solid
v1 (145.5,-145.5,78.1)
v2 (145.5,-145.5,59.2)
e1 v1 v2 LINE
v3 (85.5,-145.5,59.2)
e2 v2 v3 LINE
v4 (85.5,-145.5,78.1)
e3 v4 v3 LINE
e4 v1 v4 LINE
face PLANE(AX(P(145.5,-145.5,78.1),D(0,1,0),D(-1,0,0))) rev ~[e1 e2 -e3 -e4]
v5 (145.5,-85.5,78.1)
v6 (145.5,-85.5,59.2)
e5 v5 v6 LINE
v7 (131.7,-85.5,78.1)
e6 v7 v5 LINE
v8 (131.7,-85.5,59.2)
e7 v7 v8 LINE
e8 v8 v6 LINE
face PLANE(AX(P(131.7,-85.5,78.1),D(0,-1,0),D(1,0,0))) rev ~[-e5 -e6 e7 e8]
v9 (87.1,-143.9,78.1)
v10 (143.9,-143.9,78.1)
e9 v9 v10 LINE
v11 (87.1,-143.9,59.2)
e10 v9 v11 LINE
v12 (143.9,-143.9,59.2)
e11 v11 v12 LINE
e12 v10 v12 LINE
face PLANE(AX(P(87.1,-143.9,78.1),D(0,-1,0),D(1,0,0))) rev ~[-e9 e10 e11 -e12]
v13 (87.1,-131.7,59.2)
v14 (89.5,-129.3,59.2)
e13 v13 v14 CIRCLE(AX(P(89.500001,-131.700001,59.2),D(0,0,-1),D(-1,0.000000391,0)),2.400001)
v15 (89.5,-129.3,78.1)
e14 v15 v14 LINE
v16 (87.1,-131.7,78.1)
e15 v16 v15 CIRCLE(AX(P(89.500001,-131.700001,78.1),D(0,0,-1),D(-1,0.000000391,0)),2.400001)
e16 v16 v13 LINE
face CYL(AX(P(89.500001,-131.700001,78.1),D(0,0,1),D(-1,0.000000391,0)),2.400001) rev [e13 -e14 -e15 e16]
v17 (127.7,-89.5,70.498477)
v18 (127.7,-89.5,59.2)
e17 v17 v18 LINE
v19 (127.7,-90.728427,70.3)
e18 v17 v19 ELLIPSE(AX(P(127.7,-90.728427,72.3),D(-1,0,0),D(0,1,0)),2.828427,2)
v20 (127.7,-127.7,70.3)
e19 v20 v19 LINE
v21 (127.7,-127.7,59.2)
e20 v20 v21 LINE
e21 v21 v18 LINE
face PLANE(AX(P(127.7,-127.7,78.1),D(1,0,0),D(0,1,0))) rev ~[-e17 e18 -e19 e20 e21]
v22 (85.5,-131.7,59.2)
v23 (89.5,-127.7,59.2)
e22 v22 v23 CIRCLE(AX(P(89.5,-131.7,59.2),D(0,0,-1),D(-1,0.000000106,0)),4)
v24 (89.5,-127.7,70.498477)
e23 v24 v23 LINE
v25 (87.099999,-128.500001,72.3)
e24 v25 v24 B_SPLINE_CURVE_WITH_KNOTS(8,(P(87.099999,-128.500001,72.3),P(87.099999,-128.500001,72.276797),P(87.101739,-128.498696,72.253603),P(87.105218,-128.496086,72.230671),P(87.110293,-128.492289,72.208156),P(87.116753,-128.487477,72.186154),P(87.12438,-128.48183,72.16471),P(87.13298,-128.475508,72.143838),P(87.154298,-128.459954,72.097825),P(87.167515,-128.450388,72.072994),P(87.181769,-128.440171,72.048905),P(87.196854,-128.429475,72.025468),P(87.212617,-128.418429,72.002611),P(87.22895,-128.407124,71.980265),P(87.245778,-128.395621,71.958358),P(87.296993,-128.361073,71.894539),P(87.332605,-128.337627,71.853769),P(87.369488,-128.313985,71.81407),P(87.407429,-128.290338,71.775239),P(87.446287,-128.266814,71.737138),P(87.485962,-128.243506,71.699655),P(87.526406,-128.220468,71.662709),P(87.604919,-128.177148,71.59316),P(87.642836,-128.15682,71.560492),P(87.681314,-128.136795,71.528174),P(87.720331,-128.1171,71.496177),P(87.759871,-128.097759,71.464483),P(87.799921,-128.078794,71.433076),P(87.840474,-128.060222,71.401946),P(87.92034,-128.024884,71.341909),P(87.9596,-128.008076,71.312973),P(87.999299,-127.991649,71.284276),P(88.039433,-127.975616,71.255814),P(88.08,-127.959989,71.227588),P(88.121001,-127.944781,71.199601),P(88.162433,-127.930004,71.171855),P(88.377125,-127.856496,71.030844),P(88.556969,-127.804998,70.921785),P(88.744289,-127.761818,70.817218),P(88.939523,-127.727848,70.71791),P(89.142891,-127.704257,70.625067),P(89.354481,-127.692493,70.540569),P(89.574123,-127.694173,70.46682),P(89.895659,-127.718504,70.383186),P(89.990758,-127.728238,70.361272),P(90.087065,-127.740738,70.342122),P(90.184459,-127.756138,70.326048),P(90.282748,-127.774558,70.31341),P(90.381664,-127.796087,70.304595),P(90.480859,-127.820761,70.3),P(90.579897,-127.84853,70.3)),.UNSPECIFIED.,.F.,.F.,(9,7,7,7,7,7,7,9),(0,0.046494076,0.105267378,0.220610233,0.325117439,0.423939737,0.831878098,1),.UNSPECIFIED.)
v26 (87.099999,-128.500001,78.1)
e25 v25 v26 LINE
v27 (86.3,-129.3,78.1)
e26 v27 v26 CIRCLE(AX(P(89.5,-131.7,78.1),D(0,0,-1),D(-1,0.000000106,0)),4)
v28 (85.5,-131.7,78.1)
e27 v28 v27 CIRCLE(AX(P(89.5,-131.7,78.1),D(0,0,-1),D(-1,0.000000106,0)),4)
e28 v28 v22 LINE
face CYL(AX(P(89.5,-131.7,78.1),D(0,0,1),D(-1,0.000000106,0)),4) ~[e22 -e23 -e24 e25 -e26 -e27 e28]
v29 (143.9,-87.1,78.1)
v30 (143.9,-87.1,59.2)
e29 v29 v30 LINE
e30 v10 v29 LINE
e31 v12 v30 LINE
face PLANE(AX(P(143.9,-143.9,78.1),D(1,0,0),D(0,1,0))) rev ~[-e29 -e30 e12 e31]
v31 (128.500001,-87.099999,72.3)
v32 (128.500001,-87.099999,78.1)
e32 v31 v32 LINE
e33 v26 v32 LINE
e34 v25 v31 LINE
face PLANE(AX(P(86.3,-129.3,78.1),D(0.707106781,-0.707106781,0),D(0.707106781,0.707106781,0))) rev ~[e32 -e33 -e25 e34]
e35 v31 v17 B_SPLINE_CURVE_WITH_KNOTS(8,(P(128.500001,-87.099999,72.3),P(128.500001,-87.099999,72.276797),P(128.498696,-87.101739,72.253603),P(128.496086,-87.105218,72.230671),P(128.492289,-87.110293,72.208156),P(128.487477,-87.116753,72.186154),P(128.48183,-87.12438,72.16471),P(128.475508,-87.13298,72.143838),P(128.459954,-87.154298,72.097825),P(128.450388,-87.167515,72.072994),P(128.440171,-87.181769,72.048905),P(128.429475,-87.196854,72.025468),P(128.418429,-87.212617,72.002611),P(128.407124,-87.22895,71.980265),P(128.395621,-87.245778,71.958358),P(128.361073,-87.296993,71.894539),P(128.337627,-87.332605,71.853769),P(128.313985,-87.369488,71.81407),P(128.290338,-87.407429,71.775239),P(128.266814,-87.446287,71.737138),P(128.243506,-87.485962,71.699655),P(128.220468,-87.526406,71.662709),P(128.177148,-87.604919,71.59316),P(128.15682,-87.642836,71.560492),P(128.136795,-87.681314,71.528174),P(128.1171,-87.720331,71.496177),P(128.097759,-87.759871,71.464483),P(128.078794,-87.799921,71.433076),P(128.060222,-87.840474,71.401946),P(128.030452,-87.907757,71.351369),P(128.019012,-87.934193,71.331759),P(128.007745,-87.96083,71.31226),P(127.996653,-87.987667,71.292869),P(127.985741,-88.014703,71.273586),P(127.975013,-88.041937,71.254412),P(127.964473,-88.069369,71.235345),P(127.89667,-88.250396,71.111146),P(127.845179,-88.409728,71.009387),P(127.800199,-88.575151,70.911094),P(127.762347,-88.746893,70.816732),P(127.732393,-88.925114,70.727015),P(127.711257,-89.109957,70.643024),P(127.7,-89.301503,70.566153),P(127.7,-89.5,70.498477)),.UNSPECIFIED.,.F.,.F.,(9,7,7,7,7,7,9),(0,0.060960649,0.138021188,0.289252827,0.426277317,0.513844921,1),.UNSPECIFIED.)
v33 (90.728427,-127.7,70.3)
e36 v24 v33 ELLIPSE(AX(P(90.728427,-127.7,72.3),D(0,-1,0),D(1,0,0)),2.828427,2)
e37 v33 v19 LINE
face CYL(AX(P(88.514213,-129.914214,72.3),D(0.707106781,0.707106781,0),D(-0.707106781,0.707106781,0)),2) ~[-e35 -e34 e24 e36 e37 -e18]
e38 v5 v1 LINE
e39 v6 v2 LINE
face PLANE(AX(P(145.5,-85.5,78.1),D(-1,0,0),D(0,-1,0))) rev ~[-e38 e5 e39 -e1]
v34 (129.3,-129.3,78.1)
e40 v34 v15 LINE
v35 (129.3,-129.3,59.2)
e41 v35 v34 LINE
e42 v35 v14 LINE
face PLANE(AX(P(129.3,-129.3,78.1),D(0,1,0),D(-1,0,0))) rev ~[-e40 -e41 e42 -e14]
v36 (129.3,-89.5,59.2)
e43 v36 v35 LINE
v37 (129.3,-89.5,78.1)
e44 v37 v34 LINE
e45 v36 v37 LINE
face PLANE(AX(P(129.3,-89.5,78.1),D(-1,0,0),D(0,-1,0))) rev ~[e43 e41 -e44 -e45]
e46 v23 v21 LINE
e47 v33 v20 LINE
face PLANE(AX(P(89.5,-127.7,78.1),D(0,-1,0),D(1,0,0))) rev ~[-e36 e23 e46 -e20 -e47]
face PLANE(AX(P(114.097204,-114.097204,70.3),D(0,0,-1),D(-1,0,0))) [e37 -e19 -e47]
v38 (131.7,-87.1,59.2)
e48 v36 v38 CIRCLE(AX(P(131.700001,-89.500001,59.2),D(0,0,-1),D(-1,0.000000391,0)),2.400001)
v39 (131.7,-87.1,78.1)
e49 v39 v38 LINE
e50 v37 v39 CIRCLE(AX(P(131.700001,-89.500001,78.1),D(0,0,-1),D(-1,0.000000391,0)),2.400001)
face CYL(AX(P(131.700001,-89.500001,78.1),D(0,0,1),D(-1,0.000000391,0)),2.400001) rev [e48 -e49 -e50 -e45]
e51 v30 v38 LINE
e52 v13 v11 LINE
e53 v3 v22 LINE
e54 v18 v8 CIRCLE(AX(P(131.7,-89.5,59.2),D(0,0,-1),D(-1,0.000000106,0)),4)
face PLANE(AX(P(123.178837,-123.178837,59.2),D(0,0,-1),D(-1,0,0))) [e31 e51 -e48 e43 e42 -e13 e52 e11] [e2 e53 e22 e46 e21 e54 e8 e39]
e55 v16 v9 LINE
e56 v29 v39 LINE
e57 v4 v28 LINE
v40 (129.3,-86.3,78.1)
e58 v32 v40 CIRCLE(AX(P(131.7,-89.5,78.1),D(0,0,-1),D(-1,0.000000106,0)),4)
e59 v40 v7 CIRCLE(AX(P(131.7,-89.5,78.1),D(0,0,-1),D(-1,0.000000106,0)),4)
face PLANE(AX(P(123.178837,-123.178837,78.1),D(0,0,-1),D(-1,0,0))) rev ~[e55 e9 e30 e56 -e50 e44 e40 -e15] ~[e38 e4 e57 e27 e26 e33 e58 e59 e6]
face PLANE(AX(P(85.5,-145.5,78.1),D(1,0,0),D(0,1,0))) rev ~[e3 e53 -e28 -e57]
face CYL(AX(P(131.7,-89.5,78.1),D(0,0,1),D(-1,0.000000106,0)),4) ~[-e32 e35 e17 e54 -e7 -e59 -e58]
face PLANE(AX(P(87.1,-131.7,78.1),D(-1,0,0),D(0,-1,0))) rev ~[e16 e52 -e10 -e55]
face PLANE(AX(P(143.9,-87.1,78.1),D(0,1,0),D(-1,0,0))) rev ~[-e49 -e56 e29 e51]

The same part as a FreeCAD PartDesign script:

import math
import FreeCAD as App
import Part
import Sketcher

V = App.Vector


def edges_at(feature, points):
    """Names of the edges that pass closest to the given points."""
    edges = feature.Shape.Edges
    near = lambda p: min(range(len(edges)), key=lambda i: edges[i].distToShape(Part.Vertex(*p))[0])
    return sorted({f"Edge{near(p) + 1}" for p in points})


def add_polygon(sketch, points):
    """Adds a closed chain of lines whose ends are joined by coincident constraints."""
    first, n = sketch.GeometryCount, len(points)
    for a, b in zip(points, points[1:] + points[:1]):
        sketch.addGeometry(Part.LineSegment(App.Vector(*a, 0), App.Vector(*b, 0)), False)
    for i in range(n):
        sketch.addConstraint(Sketcher.Constraint("Coincident", first + i, 2, first + (i + 1) % n, 1))

doc = App.newDocument("Part")
body = doc.addObject("PartDesign::Body", "Body")

sketch1 = body.newObject("Sketcher::SketchObject", "Sketch")
sketch1.AttachmentSupport = (doc.getObject("XY_Plane"), [""])
sketch1.MapMode = "FlatFace"
sketch1.addGeometry([
    Part.LineSegment(V(-30, 30, 0), V(-30, -30, 0)),
    Part.LineSegment(V(-30, -30, 0), V(30, -30, 0)),
    Part.LineSegment(V(30, -30, 0), V(30, -16.2, 0)),
    Part.ArcOfCircle(Part.Circle(V(26, -16.2, 0), V(0, 0, 1), 4), math.radians(0), math.radians(90)),
    Part.LineSegment(V(26, -12.2, 0), V(-12.2, -12.2, 0)),
    Part.LineSegment(V(-12.2, -12.2, 0), V(-12.2, 26, 0)),
    Part.ArcOfCircle(Part.Circle(V(-16.2, 26, 0), V(0, 0, 1), 4), math.radians(0), math.radians(90)),
    Part.LineSegment(V(-16.2, 30, 0), V(-30, 30, 0)),
    Part.LineSegment(V(-28.4, -28.4, 0), V(-28.4, 28.4, 0)),
    Part.LineSegment(V(-28.4, 28.4, 0), V(-16.2, 28.4, 0)),
    Part.ArcOfCircle(Part.Circle(V(-16.2, 26, 0), V(0, 0, 1), 2.4), math.radians(0), math.radians(90)),
    Part.LineSegment(V(-13.8, 26, 0), V(-13.8, -13.8, 0)),
    Part.LineSegment(V(-13.8, -13.8, 0), V(26, -13.8, 0)),
    Part.ArcOfCircle(Part.Circle(V(26, -16.2, 0), V(0, 0, 1), 2.4), math.radians(0), math.radians(90)),
    Part.LineSegment(V(28.4, -16.2, 0), V(28.4, -28.4, 0)),
    Part.LineSegment(V(28.4, -28.4, 0), V(-28.4, -28.4, 0)),
], False)
sketch1.addConstraint([
    Sketcher.Constraint("Coincident", 0, 2, 1, 1),
    Sketcher.Constraint("Coincident", 1, 2, 2, 1),
    Sketcher.Constraint("Tangent", 2, 2, 3, 1),
    Sketcher.Constraint("Tangent", 3, 2, 4, 1),
    Sketcher.Constraint("Coincident", 4, 2, 5, 1),
    Sketcher.Constraint("Tangent", 5, 2, 6, 1),
    Sketcher.Constraint("Tangent", 6, 2, 7, 1),
    Sketcher.Constraint("Coincident", 7, 2, 0, 1),
    Sketcher.Constraint("Coincident", 8, 2, 9, 1),
    Sketcher.Constraint("Tangent", 9, 2, 10, 2),
    Sketcher.Constraint("Tangent", 10, 1, 11, 1),
    Sketcher.Constraint("Coincident", 11, 2, 12, 1),
    Sketcher.Constraint("Tangent", 12, 2, 13, 2),
    Sketcher.Constraint("Tangent", 13, 1, 14, 1),
    Sketcher.Constraint("Coincident", 14, 2, 15, 1),
    Sketcher.Constraint("Coincident", 15, 2, 8, 1),
    Sketcher.Constraint("Vertical", 0),
    Sketcher.Constraint("Horizontal", 1),
    Sketcher.Constraint("Vertical", 2),
    Sketcher.Constraint("Horizontal", 4),
    Sketcher.Constraint("Vertical", 5),
    Sketcher.Constraint("Horizontal", 7),
    Sketcher.Constraint("Vertical", 8),
    Sketcher.Constraint("Horizontal", 9),
    Sketcher.Constraint("Vertical", 11),
    Sketcher.Constraint("Horizontal", 12),
    Sketcher.Constraint("Vertical", 14),
    Sketcher.Constraint("Horizontal", 15),
    Sketcher.Constraint("Coincident", 10, 3, 6, 3),
    Sketcher.Constraint("Coincident", 13, 3, 3, 3),
    Sketcher.Constraint("Equal", 3, 6),
    Sketcher.Constraint("Equal", 10, 13),
    Sketcher.Constraint("Symmetric", 1, 2, 7, 2, -1, 1),
    Sketcher.Constraint("Symmetric", 8, 2, 14, 2, -1, 1),
    Sketcher.Constraint("Equal", 1, 0),
    Sketcher.Constraint("Equal", 7, 2),
    Sketcher.Constraint("Radius", 3, 4.0),
    Sketcher.Constraint("Radius", 10, 2.400001),
    Sketcher.Constraint("DistanceX", 1, 1, 1, 2, 60.0),
    Sketcher.Constraint("DistanceX", 4, 2, 4, 1, 38.2),
])
pad1 = body.newObject("PartDesign::Pad", "Pad")
pad1.Profile = sketch1
pad1.Length = 18.9

sketch2 = body.newObject("Sketcher::SketchObject", "Sketch001")
sketch2.AttachmentSupport = (doc.getObject("XY_Plane"), [""])
sketch2.MapMode = "FlatFace"
add_polygon(sketch2, [(-14, 29), (-14, -14), (29, -14)])
sketch2.addConstraint([
    Sketcher.Constraint("Vertical", 0),
    Sketcher.Constraint("Horizontal", 1),
    Sketcher.Constraint("Equal", 1, 0),
    Sketcher.Constraint("DistanceX", 1, 1, 1, 2, 43.0),
    Sketcher.Constraint("DistanceX", 0, 2, -1, 1, 13.8),
    Sketcher.Constraint("DistanceY", 0, 2, -1, 1, 13.8),
])
pad2 = body.newObject("PartDesign::Pad", "Pad001")
pad2.Profile = sketch2
pad2.Length = 7.8
doc.recompute()

fillet = body.newObject("PartDesign::Fillet", "Fillet")
fillet.Base = (pad2, edges_at(pad2, [(7.7, 7.7, 7.8)]))
fillet.Radius = 2
body2 = doc.addObject("PartDesign::Body", "Body001")
doc.recompute()

body.Placement = App.Placement(V(115.5, -115.5, 78.1), App.Rotation(V(0, 1, 0), 180))
boolean = body2.newObject("PartDesign::Boolean", "Boolean")
boolean.Type = "Fuse"
boolean.addObjects([body])

doc.recompute()
